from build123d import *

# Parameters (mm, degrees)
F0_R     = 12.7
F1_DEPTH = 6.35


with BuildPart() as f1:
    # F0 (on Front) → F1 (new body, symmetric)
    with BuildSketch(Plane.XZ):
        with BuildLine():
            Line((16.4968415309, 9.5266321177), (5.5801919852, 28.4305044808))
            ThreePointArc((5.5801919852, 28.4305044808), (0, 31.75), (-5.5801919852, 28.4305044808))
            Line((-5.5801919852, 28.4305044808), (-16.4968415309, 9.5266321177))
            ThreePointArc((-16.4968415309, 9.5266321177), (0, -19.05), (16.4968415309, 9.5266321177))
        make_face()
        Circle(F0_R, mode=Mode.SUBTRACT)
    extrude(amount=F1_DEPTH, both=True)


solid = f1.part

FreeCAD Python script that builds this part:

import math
import FreeCAD as App
import Part
import Sketcher

V = App.Vector
Q = App.Units.Quantity

doc = App.newDocument("Part")
body = doc.addObject("PartDesign::Body", "Body")

# Sketch on XZ plane
sketch1 = body.newObject("Sketcher::SketchObject", "Sketch")
sketch1.AttachmentSupport = (doc.getObject("XZ_Plane"), [""])
sketch1.MapMode = "FlatFace"
sketch1.addGeometry([
    Part.LineSegment(V(16.496842, 9.526632, 0), V(5.580192, 28.430504, 0)),  # 0
    Part.ArcOfCircle(Part.Circle(V(0, 25.4, 0), V(0, 0, 1), 6.35), math.radians(28.50561), math.radians(151.49439)),  # 1
    Part.LineSegment(V(-5.580192, 28.430504, 0), V(-16.496842, 9.526632, 0)),  # 2
    Part.ArcOfCircle(Part.Circle(V(0, 0, 0), V(0, 0, 1), 19.05), math.radians(149.994332), math.radians(390.005668)),  # 3
    Part.Circle(V(0, 0, 0), V(0, 0, 1), 12.7),  # 4
], False)
sketch1.addConstraint([
    Sketcher.Constraint("Coincident", 0, 2, 1, 1),
    Sketcher.Constraint("Coincident", 1, 2, 2, 1),
    Sketcher.Constraint("Tangent", 2, 2, 3, 1),
    Sketcher.Constraint("Tangent", 3, 2, 0, 1),
    Sketcher.Constraint("Coincident", 3, 3, -1, 1),
    Sketcher.Constraint("Coincident", 4, 3, -1, 1),
    Sketcher.Constraint("Symmetric", 0, 2, 1, 2, -2),
    Sketcher.Constraint("Diameter", 4, Q("1 in")),
    Sketcher.Constraint("Radius", 1, Q("0.25 in")),
    Sketcher.Constraint("Radius", 3, Q("0.75 in")),
    Sketcher.Constraint("DistanceY", -1, 1, 1, 3, Q("1 in")),
    Sketcher.Constraint("Distance", 0, Q("21.829559 mm")),
])
pad1 = body.newObject("PartDesign::Pad", "Pad")
pad1.Profile = sketch1
pad1.Length = Q("0.5 in")
pad1.Midplane = True

doc.recompute()
